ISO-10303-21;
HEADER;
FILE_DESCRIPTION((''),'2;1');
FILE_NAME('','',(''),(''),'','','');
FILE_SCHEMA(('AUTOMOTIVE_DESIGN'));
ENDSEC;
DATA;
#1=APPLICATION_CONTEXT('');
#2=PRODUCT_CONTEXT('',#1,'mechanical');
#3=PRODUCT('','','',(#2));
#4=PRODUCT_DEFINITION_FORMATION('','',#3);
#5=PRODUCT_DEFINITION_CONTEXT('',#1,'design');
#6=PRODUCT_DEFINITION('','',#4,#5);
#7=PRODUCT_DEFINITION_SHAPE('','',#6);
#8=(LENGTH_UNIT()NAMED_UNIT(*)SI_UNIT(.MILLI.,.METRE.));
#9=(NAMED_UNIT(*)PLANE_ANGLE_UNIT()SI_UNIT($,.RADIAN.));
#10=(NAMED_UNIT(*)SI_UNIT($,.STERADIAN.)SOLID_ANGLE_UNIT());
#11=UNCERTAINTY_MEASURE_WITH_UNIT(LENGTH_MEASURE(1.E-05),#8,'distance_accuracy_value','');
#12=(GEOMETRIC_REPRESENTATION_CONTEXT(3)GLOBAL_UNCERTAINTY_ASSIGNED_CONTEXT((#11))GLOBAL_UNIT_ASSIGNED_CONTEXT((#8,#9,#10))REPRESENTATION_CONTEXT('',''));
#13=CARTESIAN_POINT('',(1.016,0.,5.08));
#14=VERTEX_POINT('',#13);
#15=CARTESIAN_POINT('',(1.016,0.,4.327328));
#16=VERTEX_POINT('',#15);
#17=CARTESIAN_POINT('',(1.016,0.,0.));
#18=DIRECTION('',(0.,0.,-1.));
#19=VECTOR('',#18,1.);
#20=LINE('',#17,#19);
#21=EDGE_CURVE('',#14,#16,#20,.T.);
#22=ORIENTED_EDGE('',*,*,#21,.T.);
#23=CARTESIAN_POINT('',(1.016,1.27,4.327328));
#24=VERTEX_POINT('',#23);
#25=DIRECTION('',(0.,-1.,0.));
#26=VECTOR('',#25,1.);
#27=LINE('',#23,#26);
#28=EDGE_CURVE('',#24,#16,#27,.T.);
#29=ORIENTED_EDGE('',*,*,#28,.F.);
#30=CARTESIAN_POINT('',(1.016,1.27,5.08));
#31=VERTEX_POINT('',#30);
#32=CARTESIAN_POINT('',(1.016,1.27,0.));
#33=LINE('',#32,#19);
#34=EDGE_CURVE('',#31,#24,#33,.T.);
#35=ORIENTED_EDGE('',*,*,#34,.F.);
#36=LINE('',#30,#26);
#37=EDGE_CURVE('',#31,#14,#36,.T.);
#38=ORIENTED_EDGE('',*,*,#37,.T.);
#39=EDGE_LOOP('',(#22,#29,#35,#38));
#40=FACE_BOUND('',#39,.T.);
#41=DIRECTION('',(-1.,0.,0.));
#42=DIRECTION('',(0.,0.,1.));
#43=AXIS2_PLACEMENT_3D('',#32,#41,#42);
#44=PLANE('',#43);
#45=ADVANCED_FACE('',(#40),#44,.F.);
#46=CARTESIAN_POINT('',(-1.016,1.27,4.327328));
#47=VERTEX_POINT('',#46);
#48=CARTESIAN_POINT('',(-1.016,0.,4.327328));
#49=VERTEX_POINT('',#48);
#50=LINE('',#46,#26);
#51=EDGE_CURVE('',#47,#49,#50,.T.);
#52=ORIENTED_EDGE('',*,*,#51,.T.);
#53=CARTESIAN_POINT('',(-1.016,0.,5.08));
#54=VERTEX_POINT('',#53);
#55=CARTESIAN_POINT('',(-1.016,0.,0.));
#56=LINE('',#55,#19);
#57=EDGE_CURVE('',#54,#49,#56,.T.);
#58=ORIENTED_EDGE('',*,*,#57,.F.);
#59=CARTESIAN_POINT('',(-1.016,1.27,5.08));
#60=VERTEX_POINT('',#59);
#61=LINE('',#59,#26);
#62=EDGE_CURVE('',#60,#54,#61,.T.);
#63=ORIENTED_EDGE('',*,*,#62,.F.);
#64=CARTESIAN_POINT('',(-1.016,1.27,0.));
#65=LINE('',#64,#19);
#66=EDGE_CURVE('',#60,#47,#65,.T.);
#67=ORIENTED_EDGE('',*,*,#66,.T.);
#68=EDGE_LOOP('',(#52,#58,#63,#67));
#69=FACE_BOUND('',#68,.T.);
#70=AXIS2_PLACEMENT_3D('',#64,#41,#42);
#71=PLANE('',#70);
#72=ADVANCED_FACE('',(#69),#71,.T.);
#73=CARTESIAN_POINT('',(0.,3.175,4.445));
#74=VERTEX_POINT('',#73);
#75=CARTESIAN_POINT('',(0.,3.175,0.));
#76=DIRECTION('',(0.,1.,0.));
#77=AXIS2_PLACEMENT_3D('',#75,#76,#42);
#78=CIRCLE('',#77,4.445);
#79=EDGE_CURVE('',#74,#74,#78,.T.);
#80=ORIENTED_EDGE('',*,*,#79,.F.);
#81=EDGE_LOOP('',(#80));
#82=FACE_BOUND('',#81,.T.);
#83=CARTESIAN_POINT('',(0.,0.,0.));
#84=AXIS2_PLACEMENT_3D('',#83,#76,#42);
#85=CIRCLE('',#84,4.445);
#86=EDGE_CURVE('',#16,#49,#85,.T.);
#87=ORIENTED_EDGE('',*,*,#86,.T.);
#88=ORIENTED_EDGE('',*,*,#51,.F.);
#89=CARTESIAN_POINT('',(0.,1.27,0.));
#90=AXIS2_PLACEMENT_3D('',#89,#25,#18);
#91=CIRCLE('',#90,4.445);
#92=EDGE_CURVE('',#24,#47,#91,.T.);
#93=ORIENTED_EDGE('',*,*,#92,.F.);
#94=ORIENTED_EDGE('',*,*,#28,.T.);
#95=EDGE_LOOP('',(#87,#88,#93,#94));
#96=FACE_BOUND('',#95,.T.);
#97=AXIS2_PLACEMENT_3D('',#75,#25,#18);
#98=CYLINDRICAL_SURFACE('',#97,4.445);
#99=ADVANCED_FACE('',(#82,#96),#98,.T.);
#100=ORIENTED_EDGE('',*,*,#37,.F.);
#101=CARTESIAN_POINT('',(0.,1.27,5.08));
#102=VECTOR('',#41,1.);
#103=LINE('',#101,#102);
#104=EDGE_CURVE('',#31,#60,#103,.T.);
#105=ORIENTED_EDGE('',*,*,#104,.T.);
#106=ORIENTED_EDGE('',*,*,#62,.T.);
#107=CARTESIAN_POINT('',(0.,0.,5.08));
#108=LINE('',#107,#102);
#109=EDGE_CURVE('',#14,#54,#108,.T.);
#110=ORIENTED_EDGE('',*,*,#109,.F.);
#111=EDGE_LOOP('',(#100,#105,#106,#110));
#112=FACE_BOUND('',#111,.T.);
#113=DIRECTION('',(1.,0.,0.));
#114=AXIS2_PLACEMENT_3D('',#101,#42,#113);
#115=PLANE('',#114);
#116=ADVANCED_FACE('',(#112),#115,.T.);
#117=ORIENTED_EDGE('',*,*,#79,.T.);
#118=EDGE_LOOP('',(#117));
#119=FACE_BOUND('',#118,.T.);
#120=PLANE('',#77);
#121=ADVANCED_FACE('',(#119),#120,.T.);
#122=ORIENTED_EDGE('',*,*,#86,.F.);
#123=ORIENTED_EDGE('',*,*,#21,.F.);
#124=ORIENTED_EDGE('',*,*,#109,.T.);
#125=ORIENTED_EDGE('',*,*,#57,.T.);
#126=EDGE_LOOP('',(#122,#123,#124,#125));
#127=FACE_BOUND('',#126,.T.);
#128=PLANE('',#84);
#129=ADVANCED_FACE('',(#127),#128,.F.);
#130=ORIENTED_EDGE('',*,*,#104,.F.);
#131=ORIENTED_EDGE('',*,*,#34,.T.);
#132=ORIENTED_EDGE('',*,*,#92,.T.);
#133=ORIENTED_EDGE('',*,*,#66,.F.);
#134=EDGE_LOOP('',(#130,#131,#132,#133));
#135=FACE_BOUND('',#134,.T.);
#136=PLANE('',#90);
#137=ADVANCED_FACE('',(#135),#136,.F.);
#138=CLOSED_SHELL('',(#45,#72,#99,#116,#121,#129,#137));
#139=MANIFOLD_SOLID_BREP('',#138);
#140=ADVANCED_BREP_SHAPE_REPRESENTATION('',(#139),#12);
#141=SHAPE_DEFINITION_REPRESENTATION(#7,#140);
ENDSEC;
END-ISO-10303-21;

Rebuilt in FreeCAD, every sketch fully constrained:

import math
import FreeCAD as App
import Part
import Sketcher

V = App.Vector
Q = App.Units.Quantity

doc = App.newDocument("Part")
body = doc.addObject("PartDesign::Body", "Body")

sketch1 = body.newObject("Sketcher::SketchObject", "Sketch")
sketch1.AttachmentSupport = (doc.getObject("XZ_Plane"), [""])
sketch1.MapMode = "FlatFace"
sketch1.addGeometry(Part.Circle(V(0, 0, 0), V(0, 0, 1), 4.4), False)
sketch1.addConstraint(Sketcher.Constraint("Coincident", 0, 3, -1, 1))
sketch1.addConstraint(Sketcher.Constraint("Diameter", 0, Q("0.35 in")))
pad1 = body.newObject("PartDesign::Pad", "Pad")
pad1.Profile = sketch1
pad1.Length = Q("0.125 in")
pad1.Reversed = True

sketch2 = body.newObject("Sketcher::SketchObject", "Sketch001")
sketch2.AttachmentSupport = (doc.getObject("XZ_Plane"), [""])
sketch2.MapMode = "FlatFace"
sketch2.addGeometry(Part.LineSegment(V(-1, 5.1, 0), V(-1, 4.3, 0)), False)
sketch2.addGeometry(Part.ArcOfCircle(Part.Circle(V(0, 0, 0), V(0, 0, 1), 4.4), math.radians(90), math.radians(103.21)), False)
sketch2.addGeometry(Part.ArcOfCircle(Part.Circle(V(0, 0, 0), V(0, 0, 1), 4.4), math.radians(76.79), math.radians(90)), False)
sketch2.addGeometry(Part.LineSegment(V(1, 4.3, 0), V(1, 5.1, 0)), False)
sketch2.addGeometry(Part.LineSegment(V(1, 5.1, 0), V(-1, 5.1, 0)), False)
sketch2.addConstraint(Sketcher.Constraint("Coincident", 0, 2, 1, 2))
sketch2.addConstraint(Sketcher.Constraint("Tangent", 1, 1, 2, 2))
sketch2.addConstraint(Sketcher.Constraint("Coincident", 2, 1, 3, 1))
sketch2.addConstraint(Sketcher.Constraint("Coincident", 3, 2, 4, 1))
sketch2.addConstraint(Sketcher.Constraint("Coincident", 4, 2, 0, 1))
sketch2.addConstraint(Sketcher.Constraint("Vertical", 0))
sketch2.addConstraint(Sketcher.Constraint("Vertical", 3))
sketch2.addConstraint(Sketcher.Constraint("Horizontal", 4))
sketch2.addConstraint(Sketcher.Constraint("Coincident", 1, 3, -1, 1))
sketch2.addConstraint(Sketcher.Constraint("Equal", 1, 2))
sketch2.addConstraint(Sketcher.Constraint("PointOnObject", 1, 1, -2))
sketch2.addConstraint(Sketcher.Constraint("Horizontal", 0, 2, 2, 1))
sketch2.addConstraint(Sketcher.Constraint("Radius", 1, Q("0.175 in")))
sketch2.addConstraint(Sketcher.Constraint("DistanceX", 4, 2, 4, 1, Q("0.08 in")))
sketch2.addConstraint(Sketcher.Constraint("DistanceY", -1, 1, 3, 2, Q("0.2 in")))
pad2 = body.newObject("PartDesign::Pad", "Pad001")
pad2.Profile = sketch2
pad2.Length = Q("0.05 in")
pad2.Reversed = True

doc.recompute()
